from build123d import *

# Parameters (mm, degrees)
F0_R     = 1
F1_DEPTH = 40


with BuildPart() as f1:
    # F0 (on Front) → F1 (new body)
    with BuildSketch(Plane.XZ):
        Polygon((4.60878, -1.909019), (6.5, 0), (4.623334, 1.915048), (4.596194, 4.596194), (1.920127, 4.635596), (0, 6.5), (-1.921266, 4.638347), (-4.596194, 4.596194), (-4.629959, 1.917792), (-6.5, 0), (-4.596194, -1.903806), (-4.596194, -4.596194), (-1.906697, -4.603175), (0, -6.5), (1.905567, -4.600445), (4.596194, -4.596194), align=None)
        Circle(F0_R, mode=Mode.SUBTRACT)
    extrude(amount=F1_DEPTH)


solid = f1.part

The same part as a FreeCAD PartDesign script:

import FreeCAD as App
import Part
import Sketcher
from FreeCAD import Vector
Q = App.Units.Quantity


def add_polygon(sketch, points):
    """Adds a closed chain of lines whose ends are joined by coincident constraints."""
    first, n = sketch.GeometryCount, len(points)
    for a, b in zip(points, points[1:] + points[:1]):
        sketch.addGeometry(Part.LineSegment(App.Vector(*a, 0), App.Vector(*b, 0)), False)
    for i in range(n):
        sketch.addConstraint(Sketcher.Constraint("Coincident", first + i, 2, first + (i + 1) % n, 1))

doc = App.newDocument("Part")
body = doc.addObject("PartDesign::Body", "Body")

# Sketch on XZ plane
sketch1 = body.newObject("Sketcher::SketchObject", "Sketch")
sketch1.AttachmentSupport = (doc.getObject("XZ_Plane"), [""])
sketch1.MapMode = "FlatFace"
add_polygon(sketch1, [(4.6, -1.9), (6.5, 0), (4.6, 1.9), (4.6, 4.6), (1.9, 4.6), (0, 6.5), (-1.9, 4.6), (-4.6, 4.6), (-4.6, 1.9), (-6.5, 0), (-4.6, -1.9), (-4.6, -4.6), (-1.9, -4.6), (0, -6.5), (1.9, -4.6), (4.6, -4.6)])  # lines 0-15
sketch1.addGeometry(Part.Circle(Vector(0, 0, 0), Vector(0, 0, 1), 1), False)  # 16
sketch1.addConstraint(Sketcher.Constraint("Vertical", 10))
sketch1.addConstraint(Sketcher.Constraint("Coincident", 16, 3, -1, 1))
sketch1.addConstraint(Sketcher.Constraint("Symmetric", 0, 2, 8, 2, -1, 1))
sketch1.addConstraint(Sketcher.Constraint("Symmetric", 2, 2, 10, 2, -1, 1))
sketch1.addConstraint(Sketcher.Constraint("Symmetric", 4, 2, 12, 2, -1, 1))
sketch1.addConstraint(Sketcher.Constraint("Symmetric", 6, 2, 14, 2, -1, 1))
sketch1.addConstraint(Sketcher.Constraint("Symmetric", 2, 2, 6, 2, -2))
sketch1.addConstraint(Sketcher.Constraint("PointOnObject", 0, 2, -1))
sketch1.addConstraint(Sketcher.Constraint("PointOnObject", 4, 2, -2))
sketch1.addConstraint(Sketcher.Constraint("Equal", 1, 2))
sketch1.addConstraint(Sketcher.Constraint("Equal", 3, 4))
sketch1.addConstraint(Sketcher.Constraint("Equal", 5, 6))
sketch1.addConstraint(Sketcher.Constraint("Equal", 7, 8))
sketch1.addConstraint(Sketcher.Constraint("Equal", 11, 12))
sketch1.addConstraint(Sketcher.Constraint("Equal", 13, 14))
sketch1.addConstraint(Sketcher.Constraint("Equal", 0, 15))
sketch1.addConstraint(Sketcher.Constraint("Diameter", 16, Q("2 mm")))
sketch1.addConstraint(Sketcher.Constraint("Angle", 9, Q("-45 deg")))
sketch1.addConstraint(Sketcher.Constraint("DistanceX", -1, 1, 0, 2, Q("6.5 mm")))
sketch1.addConstraint(Sketcher.Constraint("DistanceY", -1, 1, 4, 2, Q("6.5 mm")))
sketch1.addConstraint(Sketcher.Constraint("DistanceY", 9, 2, 6, 2, Q("6.5 mm")))
sketch1.addConstraint(Sketcher.Constraint("DistanceY", 2, 2, 3, 2, Q("0.039402 mm")))
sketch1.addConstraint(Sketcher.Constraint("DistanceX", 5, 2, 1, 2, Q("6.5446 mm")))
sketch1.addConstraint(Sketcher.Constraint("DistanceY", 1, 2, 5, 2, Q("2.723299 mm")))
sketch1.addConstraint(Sketcher.Constraint("DistanceY", 7, 2, 6, 2, Q("2.678402 mm")))
sketch1.addConstraint(Sketcher.Constraint("Distance", 5, Q("2.67526 mm")))
sketch1.addConstraint(Sketcher.Constraint("Distance", 13, Q("2.690631 mm")))
sketch1.addConstraint(Sketcher.Constraint("DistanceX", -1, 1, 15, 2, Q("4.60878 mm")))
sketch1.addConstraint(Sketcher.Constraint("DistanceY", 11, 2, 10, 2, Q("0.006981 mm")))
pad1 = body.newObject("PartDesign::Pad", "Pad")
pad1.Profile = sketch1
pad1.Length = 40

doc.recompute()
